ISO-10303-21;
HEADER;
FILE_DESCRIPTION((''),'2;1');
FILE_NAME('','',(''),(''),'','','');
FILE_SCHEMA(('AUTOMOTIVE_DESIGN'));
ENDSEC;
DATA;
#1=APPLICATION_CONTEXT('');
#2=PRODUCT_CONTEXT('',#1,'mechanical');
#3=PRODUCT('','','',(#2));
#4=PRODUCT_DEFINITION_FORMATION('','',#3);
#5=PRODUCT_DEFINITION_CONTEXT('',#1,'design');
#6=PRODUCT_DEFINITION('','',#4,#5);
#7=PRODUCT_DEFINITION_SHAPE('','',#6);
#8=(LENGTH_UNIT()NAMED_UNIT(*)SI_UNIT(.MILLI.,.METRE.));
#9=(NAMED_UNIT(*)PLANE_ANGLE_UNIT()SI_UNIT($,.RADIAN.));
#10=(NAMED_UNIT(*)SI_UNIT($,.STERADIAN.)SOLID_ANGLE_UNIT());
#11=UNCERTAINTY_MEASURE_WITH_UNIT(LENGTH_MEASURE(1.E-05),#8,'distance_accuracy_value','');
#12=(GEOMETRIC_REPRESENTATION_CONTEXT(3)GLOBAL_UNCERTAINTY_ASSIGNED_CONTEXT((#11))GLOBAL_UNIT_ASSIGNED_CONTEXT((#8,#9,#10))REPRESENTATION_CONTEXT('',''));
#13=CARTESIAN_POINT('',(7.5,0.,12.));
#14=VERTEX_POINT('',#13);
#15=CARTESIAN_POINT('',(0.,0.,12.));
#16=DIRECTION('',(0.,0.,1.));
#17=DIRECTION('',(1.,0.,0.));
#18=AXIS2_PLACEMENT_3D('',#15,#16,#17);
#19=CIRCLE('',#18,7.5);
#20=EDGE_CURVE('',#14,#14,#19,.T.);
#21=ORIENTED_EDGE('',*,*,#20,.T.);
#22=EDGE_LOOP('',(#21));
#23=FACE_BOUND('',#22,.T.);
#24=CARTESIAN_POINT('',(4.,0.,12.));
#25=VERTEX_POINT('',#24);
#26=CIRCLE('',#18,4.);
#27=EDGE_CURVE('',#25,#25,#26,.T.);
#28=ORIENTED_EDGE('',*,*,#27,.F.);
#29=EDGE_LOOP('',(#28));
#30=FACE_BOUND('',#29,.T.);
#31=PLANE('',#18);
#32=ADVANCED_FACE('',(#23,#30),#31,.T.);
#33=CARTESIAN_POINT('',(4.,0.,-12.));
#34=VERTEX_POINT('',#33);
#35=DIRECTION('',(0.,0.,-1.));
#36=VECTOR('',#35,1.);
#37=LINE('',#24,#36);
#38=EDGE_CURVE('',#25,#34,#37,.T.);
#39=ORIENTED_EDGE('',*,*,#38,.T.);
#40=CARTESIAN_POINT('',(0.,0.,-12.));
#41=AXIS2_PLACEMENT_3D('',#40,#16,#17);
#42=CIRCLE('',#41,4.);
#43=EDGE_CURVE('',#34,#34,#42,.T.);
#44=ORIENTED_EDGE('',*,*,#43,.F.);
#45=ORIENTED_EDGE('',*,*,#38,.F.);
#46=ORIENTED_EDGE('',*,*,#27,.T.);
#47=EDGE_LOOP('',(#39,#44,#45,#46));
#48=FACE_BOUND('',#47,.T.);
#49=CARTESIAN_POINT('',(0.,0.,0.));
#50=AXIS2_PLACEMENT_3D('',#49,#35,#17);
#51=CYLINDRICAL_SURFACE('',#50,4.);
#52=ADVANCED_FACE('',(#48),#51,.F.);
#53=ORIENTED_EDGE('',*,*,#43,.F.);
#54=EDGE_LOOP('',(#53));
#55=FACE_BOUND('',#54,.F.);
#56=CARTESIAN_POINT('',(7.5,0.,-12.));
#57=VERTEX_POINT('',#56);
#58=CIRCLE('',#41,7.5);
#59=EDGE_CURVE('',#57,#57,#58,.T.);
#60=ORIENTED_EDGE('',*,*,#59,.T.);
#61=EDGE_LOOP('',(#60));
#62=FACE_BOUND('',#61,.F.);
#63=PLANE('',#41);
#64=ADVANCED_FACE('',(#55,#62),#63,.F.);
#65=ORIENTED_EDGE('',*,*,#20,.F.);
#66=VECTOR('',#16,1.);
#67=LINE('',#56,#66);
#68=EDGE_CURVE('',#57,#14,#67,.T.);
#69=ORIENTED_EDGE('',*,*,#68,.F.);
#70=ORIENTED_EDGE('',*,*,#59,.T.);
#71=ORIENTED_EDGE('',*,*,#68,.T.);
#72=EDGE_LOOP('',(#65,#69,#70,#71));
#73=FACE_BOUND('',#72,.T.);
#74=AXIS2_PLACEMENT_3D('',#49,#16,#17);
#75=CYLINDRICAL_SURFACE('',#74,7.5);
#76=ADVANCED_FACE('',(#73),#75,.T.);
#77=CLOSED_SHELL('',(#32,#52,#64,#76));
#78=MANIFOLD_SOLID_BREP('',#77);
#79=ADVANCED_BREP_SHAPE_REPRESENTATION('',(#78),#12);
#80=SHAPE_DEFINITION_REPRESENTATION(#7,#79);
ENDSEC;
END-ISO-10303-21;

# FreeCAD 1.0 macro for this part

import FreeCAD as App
import Part
import Sketcher

doc = App.newDocument("Part")
body = doc.addObject("PartDesign::Body", "Body")

sketch1 = body.newObject("Sketcher::SketchObject", "Sketch")
sketch1.AttachmentSupport = (doc.getObject("XY_Plane"), [""])
sketch1.MapMode = "FlatFace"
sketch1.addGeometry([
    Part.Circle(App.Vector(0, 0, 0), App.Vector(0, 0, 1), 7.5),
    Part.Circle(App.Vector(0, 0, 0), App.Vector(0, 0, 1), 4),
], False)
sketch1.addConstraint([
    Sketcher.Constraint("Coincident", 0, 3, -1, 1),
    Sketcher.Constraint("Coincident", 1, 3, -1, 1),
    Sketcher.Constraint("Diameter", 0, 15.0),
    Sketcher.Constraint("Diameter", 1, 8.0),
])
pad1 = body.newObject("PartDesign::Pad", "Pad")
pad1.Profile = sketch1
pad1.Length = 24
pad1.Midplane = True

doc.recompute()
